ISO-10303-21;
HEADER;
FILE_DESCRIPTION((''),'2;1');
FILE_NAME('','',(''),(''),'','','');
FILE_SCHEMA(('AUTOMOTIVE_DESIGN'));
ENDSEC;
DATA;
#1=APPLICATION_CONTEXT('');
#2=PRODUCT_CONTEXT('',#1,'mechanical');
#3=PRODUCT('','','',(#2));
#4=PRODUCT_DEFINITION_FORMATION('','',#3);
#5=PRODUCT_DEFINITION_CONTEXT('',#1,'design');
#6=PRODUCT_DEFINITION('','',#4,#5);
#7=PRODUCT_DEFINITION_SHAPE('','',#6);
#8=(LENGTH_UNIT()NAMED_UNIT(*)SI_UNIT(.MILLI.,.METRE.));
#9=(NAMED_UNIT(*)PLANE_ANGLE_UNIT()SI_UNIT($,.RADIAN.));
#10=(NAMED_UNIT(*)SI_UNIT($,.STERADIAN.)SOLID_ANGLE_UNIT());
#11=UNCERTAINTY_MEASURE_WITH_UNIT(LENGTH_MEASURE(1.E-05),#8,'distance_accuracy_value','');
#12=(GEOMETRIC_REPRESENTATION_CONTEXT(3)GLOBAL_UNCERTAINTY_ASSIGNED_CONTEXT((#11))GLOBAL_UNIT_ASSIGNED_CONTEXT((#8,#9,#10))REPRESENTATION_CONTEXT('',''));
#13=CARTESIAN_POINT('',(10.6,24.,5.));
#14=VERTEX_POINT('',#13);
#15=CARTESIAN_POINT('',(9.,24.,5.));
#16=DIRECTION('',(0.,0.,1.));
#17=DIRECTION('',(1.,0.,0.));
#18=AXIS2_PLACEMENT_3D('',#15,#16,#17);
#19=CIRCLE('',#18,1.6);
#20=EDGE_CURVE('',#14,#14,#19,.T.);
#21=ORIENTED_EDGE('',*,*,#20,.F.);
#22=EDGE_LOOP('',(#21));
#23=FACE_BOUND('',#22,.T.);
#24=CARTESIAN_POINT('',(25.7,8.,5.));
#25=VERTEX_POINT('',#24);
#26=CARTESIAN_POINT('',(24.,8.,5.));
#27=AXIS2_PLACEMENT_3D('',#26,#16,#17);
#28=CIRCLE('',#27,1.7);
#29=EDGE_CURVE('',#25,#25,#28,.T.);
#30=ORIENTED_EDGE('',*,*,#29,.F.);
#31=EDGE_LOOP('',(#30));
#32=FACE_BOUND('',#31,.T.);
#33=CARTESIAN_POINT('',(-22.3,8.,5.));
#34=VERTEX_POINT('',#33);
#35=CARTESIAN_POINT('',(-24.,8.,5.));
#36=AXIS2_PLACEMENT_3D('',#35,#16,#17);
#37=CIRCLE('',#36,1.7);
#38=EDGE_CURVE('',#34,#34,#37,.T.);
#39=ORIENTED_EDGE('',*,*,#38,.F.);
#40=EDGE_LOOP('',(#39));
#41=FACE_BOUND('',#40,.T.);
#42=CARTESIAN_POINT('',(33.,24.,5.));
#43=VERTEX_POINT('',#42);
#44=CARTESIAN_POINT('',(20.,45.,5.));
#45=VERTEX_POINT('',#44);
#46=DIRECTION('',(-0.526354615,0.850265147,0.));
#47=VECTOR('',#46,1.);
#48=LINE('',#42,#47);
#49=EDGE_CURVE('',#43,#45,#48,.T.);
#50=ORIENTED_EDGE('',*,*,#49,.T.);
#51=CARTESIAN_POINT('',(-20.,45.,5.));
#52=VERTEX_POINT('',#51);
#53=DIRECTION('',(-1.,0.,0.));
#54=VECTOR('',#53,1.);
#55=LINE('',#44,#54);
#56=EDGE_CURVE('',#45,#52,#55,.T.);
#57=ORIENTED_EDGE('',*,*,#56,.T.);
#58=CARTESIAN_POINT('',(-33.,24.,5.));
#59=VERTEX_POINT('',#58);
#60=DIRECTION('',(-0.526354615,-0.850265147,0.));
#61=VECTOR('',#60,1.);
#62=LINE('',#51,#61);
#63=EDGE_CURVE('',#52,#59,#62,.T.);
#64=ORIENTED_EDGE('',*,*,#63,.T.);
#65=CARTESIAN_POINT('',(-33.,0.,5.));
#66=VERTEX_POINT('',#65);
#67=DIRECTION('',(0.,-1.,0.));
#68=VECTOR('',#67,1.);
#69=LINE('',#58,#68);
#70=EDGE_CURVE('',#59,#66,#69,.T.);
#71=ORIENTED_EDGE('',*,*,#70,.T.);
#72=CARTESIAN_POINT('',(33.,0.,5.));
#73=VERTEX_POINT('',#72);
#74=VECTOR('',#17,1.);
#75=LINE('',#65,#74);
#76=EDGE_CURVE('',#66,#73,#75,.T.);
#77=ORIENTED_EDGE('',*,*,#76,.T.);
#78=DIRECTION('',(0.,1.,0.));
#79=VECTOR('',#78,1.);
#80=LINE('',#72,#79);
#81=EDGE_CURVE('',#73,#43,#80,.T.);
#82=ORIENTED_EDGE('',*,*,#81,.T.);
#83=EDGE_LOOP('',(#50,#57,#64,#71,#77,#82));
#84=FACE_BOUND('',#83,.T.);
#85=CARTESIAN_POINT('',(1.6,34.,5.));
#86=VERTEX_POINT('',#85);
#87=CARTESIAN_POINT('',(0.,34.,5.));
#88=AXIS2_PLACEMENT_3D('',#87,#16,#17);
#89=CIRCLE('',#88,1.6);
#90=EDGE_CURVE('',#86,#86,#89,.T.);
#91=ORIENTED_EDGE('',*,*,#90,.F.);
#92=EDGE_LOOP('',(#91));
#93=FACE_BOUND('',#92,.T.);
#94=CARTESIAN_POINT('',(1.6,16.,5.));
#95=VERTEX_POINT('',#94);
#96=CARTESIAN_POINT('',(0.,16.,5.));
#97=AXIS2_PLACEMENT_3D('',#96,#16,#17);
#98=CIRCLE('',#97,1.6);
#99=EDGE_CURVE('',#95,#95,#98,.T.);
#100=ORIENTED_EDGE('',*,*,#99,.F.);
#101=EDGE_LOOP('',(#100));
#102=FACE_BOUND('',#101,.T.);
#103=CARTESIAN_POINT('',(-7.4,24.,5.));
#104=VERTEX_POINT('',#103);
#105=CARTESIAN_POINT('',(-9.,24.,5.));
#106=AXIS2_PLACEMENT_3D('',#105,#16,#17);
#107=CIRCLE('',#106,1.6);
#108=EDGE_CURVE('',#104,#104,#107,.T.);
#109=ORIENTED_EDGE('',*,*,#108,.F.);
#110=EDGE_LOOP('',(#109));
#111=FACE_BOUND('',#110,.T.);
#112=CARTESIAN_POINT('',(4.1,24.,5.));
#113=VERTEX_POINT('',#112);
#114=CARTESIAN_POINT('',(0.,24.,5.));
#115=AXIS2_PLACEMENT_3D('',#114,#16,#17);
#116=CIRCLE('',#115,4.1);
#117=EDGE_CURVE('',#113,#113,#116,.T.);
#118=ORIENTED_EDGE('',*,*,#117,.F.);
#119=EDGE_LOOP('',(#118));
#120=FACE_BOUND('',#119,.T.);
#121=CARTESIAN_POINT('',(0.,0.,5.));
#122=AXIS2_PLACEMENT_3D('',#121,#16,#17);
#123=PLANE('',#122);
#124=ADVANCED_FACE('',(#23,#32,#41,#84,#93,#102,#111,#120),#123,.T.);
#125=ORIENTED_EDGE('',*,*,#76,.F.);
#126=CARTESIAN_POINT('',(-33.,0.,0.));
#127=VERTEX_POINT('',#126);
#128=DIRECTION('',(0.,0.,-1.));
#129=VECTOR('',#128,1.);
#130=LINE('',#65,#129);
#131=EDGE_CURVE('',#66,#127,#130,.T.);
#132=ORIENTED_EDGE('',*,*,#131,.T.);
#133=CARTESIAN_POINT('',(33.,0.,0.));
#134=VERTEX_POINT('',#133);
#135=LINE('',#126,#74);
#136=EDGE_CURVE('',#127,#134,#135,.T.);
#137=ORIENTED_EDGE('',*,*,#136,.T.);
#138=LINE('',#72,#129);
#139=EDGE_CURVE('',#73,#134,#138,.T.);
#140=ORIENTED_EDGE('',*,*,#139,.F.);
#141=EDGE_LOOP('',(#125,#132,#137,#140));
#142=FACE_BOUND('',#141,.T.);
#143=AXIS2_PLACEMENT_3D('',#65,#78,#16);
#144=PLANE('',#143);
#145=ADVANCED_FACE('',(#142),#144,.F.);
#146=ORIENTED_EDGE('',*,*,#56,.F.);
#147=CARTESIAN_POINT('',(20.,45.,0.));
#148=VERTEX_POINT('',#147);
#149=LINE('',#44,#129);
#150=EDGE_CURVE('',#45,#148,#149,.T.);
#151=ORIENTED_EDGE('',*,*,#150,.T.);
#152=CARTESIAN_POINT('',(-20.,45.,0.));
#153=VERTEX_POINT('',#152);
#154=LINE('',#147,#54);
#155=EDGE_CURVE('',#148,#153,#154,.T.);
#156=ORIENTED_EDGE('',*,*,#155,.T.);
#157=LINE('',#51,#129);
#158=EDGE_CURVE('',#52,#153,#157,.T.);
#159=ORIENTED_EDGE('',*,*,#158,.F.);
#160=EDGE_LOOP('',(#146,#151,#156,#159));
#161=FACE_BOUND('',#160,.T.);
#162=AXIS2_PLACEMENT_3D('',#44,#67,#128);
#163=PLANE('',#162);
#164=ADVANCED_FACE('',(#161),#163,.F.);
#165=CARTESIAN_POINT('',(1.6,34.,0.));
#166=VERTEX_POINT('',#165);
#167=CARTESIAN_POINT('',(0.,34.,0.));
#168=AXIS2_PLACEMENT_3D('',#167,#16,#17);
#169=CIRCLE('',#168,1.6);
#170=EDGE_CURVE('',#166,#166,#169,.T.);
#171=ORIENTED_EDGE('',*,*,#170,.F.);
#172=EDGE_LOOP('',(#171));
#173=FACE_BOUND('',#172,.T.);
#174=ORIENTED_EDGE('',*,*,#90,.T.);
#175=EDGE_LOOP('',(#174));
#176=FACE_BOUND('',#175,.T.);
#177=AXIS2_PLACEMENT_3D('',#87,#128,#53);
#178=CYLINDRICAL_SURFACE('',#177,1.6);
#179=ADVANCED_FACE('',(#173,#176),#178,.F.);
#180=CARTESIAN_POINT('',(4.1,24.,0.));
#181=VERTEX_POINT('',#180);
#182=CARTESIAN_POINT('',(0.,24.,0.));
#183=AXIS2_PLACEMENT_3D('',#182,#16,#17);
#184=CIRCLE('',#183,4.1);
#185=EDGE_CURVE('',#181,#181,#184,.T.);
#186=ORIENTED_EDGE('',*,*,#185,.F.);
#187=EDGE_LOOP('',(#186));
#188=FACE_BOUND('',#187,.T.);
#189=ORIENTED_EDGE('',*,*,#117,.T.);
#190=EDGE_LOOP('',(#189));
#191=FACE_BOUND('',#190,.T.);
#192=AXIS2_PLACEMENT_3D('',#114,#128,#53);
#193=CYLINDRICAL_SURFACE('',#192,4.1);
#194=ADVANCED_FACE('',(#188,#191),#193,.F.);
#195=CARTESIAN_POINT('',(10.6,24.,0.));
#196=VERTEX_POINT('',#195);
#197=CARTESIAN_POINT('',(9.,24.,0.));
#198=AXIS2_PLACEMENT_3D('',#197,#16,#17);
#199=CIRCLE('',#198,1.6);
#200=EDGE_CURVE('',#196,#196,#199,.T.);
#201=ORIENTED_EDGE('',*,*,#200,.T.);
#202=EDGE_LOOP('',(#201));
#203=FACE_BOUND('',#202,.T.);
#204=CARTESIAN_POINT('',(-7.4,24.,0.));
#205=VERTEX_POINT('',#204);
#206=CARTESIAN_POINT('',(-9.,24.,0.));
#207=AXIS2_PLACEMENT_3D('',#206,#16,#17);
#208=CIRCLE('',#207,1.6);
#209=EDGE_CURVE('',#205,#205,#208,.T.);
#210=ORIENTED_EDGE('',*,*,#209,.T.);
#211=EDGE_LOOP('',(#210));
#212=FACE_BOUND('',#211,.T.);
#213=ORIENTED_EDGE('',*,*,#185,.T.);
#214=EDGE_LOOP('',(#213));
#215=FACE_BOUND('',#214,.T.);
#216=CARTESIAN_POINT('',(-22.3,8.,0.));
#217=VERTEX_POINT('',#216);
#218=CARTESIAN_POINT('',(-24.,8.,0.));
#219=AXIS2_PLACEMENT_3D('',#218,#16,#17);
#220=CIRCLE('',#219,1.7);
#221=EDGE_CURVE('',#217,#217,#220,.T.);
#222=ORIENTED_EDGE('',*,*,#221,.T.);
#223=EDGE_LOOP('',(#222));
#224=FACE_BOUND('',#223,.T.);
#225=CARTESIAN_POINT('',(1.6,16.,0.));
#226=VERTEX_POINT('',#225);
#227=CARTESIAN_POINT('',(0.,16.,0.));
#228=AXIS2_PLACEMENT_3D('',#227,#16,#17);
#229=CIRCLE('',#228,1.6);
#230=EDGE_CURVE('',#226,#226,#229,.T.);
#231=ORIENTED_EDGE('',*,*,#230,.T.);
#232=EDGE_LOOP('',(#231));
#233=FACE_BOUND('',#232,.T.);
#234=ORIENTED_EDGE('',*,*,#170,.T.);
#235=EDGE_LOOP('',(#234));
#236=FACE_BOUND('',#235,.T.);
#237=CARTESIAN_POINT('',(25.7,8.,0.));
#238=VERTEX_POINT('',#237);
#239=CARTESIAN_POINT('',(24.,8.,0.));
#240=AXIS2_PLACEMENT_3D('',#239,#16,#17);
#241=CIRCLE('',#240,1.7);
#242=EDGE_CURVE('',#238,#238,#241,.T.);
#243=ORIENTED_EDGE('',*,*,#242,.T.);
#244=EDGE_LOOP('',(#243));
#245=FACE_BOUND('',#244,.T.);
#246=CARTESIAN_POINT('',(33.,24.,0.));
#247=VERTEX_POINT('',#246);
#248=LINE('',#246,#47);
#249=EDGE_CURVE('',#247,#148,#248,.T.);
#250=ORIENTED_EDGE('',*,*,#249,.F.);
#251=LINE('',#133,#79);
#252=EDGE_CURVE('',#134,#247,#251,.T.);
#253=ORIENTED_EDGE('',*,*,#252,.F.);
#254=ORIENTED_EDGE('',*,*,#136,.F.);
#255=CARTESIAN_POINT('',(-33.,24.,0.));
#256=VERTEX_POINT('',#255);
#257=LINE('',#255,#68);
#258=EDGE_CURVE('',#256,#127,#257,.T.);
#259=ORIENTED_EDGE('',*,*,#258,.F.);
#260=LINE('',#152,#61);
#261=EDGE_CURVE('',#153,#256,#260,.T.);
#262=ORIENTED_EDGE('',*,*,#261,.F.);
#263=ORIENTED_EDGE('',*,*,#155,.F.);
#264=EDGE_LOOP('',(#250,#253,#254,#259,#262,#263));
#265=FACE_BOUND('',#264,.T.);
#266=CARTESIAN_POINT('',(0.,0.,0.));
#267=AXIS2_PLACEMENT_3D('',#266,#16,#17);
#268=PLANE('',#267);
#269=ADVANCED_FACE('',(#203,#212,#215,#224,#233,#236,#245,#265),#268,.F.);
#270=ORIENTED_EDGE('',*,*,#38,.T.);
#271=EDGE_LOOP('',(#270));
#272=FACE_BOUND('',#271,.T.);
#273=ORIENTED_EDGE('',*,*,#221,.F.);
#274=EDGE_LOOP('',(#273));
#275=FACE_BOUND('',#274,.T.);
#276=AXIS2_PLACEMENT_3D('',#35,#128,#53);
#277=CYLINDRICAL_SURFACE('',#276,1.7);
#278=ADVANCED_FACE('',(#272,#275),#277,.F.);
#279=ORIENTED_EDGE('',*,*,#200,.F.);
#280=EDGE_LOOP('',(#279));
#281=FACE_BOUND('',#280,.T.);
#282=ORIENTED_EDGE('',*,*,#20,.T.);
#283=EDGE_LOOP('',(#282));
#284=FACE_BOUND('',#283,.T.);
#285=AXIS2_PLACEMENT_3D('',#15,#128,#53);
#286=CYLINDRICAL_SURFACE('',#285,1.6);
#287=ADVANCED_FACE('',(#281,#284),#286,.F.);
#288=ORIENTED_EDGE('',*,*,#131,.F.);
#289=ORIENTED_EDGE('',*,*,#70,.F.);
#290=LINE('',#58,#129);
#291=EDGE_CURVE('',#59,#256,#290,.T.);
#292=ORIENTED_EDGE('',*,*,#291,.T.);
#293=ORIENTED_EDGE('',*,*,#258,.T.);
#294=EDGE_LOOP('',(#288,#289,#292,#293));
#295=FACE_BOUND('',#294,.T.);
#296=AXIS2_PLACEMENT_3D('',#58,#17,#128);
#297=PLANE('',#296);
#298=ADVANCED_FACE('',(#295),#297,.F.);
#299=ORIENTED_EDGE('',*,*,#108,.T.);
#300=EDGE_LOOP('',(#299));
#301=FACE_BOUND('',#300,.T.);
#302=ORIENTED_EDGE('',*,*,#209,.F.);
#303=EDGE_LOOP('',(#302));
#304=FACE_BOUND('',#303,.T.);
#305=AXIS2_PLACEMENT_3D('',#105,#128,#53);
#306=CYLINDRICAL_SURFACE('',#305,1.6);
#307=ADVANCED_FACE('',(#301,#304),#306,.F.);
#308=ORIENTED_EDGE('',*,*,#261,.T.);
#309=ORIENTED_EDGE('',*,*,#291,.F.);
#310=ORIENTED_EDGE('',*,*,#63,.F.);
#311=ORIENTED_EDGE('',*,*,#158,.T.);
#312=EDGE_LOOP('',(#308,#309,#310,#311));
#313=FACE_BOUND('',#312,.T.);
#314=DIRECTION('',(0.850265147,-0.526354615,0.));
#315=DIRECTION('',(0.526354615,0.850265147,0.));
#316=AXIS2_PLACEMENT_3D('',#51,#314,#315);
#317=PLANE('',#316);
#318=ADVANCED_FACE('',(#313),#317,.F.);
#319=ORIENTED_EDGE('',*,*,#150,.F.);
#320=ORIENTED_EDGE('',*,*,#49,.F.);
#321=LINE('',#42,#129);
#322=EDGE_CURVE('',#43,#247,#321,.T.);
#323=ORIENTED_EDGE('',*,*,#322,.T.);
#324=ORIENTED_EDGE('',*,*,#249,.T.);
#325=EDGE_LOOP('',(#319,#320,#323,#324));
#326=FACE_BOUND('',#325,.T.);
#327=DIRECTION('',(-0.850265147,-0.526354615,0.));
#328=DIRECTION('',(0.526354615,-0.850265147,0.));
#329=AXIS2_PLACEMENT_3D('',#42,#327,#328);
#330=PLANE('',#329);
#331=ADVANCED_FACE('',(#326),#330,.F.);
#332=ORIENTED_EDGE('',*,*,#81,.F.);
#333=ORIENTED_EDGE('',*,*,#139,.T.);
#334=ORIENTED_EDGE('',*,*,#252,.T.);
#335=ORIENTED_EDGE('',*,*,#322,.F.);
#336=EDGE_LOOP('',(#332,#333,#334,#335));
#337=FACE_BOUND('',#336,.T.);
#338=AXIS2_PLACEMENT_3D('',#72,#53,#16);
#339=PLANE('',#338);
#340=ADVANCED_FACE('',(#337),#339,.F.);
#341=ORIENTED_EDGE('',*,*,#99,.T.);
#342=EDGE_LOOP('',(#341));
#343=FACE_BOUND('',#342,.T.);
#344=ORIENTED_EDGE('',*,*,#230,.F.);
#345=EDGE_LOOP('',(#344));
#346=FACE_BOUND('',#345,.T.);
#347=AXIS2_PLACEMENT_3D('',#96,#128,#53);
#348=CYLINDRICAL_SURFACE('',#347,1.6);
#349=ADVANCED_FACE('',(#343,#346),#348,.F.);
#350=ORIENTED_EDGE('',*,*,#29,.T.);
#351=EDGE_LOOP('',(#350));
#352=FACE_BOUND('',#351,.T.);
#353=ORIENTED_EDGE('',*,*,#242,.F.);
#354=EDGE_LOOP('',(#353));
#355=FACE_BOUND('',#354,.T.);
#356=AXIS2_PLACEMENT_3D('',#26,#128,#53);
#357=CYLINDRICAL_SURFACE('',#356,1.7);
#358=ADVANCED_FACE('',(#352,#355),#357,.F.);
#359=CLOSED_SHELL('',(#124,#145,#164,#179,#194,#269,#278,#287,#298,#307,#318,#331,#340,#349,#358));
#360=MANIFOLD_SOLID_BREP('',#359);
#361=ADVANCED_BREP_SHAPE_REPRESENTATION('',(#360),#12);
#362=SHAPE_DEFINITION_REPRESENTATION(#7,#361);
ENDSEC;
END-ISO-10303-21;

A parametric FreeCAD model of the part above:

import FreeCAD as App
import Part
import Sketcher
from FreeCAD import Vector

doc = App.newDocument("Part")
params = doc.addObject("Spreadsheet::Sheet", "Params")
for row, (alias, value) in enumerate([
    ("sketch1_diameter", "3.4 mm"),
    ("sketch1_diameter2", "3.2 mm"),
    ("sketch1_diameter3", "8.2 mm"),
    ("sketch1_width", "66 mm"),
    ("sketch1_width2", "40 mm"),
    ("pad1_length", "5 mm"),
], start=1):
    params.set(f"A{row}", alias)
    params.set(f"B{row}", "=" + value)
    params.setAlias(f"B{row}", alias)

body = doc.addObject("PartDesign::Body", "Body")

sketch1 = body.newObject("Sketcher::SketchObject", "Sketch")
sketch1.AttachmentSupport = (doc.getObject("XY_Plane"), [""])
sketch1.MapMode = "FlatFace"
sketch1.addGeometry([
    Part.LineSegment(Vector(-33, 0, 0), Vector(33, 0, 0)),
    Part.LineSegment(Vector(33, 0, 0), Vector(33, 24, 0)),
    Part.LineSegment(Vector(33, 24, 0), Vector(20, 45, 0)),
    Part.LineSegment(Vector(20, 45, 0), Vector(-20, 45, 0)),
    Part.LineSegment(Vector(-20, 45, 0), Vector(-33, 24, 0)),
    Part.LineSegment(Vector(-33, 24, 0), Vector(-33, 0, 0)),
    Part.Circle(Vector(-24, 8, 0), Vector(0, 0, 1), 1.7),
    Part.Circle(Vector(24, 8, 0), Vector(0, 0, 1), 1.7),
    Part.Circle(Vector(0, 16, 0), Vector(0, 0, 1), 1.6),
    Part.Circle(Vector(-9, 24, 0), Vector(0, 0, 1), 1.6),
    Part.Circle(Vector(0, 24, 0), Vector(0, 0, 1), 4.1),
    Part.Circle(Vector(9, 24, 0), Vector(0, 0, 1), 1.6),
    Part.Circle(Vector(0, 34, 0), Vector(0, 0, 1), 1.6),
], False)
sketch1.addConstraint([
    Sketcher.Constraint("Coincident", 0, 2, 1, 1),
    Sketcher.Constraint("Coincident", 1, 2, 2, 1),
    Sketcher.Constraint("Coincident", 2, 2, 3, 1),
    Sketcher.Constraint("Coincident", 3, 2, 4, 1),
    Sketcher.Constraint("Coincident", 4, 2, 5, 1),
    Sketcher.Constraint("Coincident", 5, 2, 0, 1),
    Sketcher.Constraint("Horizontal", 0),
    Sketcher.Constraint("Vertical", 1),
    Sketcher.Constraint("Horizontal", 3),
    Sketcher.Constraint("Vertical", 5),
    Sketcher.Constraint("Equal", 6, 7),
    Sketcher.Constraint("Equal", 8, 9),
    Sketcher.Constraint("Equal", 9, 11),
    Sketcher.Constraint("Equal", 11, 12),
    Sketcher.Constraint("Symmetric", 0, 2, 5, 2, -1, 1),
    Sketcher.Constraint("Symmetric", 6, 3, 7, 3, -2),
    Sketcher.Constraint("Symmetric", 9, 3, 11, 3, -2),
    Sketcher.Constraint("PointOnObject", 8, 3, -2),
    Sketcher.Constraint("PointOnObject", 10, 3, -2),
    Sketcher.Constraint("PointOnObject", 12, 3, -2),
    Sketcher.Constraint("Horizontal", 9, 3, 10, 3),
    Sketcher.Constraint("Horizontal", 11, 3, 1, 2),
    Sketcher.Constraint("Horizontal", 1, 2, 4, 2),
    Sketcher.Constraint("Equal", 2, 4),
    Sketcher.Constraint("Diameter", 6, 3.4),
    Sketcher.Constraint("Diameter", 8, 3.2),
    Sketcher.Constraint("Diameter", 10, 8.2),
    Sketcher.Constraint("DistanceX", 0, 1, 0, 2, 66.0),
    Sketcher.Constraint("DistanceX", 3, 2, 3, 1, 40.0),
    Sketcher.Constraint("DistanceY", 1, 1, 1, 2, 24.0),
    Sketcher.Constraint("DistanceX", 6, 3, -1, 1, 24.0),
    Sketcher.Constraint("DistanceY", -1, 1, 6, 3, 8.0),
    Sketcher.Constraint("DistanceY", -1, 1, 8, 3, 16.0),
    Sketcher.Constraint("DistanceX", 9, 3, -1, 1, 9.0),
    Sketcher.Constraint("DistanceY", -1, 1, 12, 3, 34.0),
    Sketcher.Constraint("DistanceY", -1, 1, 2, 2, 45.0),
])
sketch1.setExpression("Constraints[24]", "Params.sketch1_diameter")
sketch1.setExpression("Constraints[25]", "Params.sketch1_diameter2")
sketch1.setExpression("Constraints[26]", "Params.sketch1_diameter3")
sketch1.setExpression("Constraints[27]", "Params.sketch1_width")
sketch1.setExpression("Constraints[28]", "Params.sketch1_width2")
pad1 = body.newObject("PartDesign::Pad", "Pad")
pad1.Profile = sketch1
pad1.setExpression("Length", "Params.pad1_length")

doc.recompute()
